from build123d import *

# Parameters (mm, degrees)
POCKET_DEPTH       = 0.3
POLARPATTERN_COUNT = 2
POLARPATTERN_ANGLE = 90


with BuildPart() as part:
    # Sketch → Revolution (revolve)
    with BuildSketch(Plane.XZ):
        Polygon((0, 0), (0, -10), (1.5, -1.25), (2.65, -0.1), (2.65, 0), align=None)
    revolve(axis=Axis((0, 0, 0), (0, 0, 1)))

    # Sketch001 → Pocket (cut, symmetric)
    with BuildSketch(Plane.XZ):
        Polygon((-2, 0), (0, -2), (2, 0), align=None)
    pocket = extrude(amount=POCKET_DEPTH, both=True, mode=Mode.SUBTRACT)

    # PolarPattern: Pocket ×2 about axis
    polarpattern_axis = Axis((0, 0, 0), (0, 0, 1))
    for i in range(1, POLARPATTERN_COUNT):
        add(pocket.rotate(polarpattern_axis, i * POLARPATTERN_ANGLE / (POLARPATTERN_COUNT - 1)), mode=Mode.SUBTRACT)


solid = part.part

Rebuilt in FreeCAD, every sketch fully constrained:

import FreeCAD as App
import Part
import Sketcher

V = App.Vector
Q = App.Units.Quantity

doc = App.newDocument("Part")
body = doc.addObject("PartDesign::Body", "Body")

# Sketch on XZ plane
sketch1 = body.newObject("Sketcher::SketchObject", "Sketch")
sketch1.AttachmentSupport = (doc.getObject("XZ_Plane"), [""])
sketch1.MapMode = "FlatFace"
sketch1.addGeometry([
    Part.LineSegment(V(0, 0, 0), V(0, -10, 0)),  # 0
    Part.LineSegment(V(0, -10, 0), V(1.5, -1.25, 0)),  # 1
    Part.LineSegment(V(1.5, -1.25, 0), V(2.65, -0.1, 0)),  # 2
    Part.LineSegment(V(2.65, -0.1, 0), V(2.65, 0, 0)),  # 3
    Part.LineSegment(V(2.65, 0, 0), V(0, 0, 0)),  # 4
], False)
sketch1.addConstraint([
    Sketcher.Constraint("Coincident", 0, 2, 1, 1),
    Sketcher.Constraint("Coincident", 1, 2, 2, 1),
    Sketcher.Constraint("Coincident", 2, 2, 3, 1),
    Sketcher.Constraint("Coincident", 3, 2, 4, 1),
    Sketcher.Constraint("Coincident", 4, 2, 0, 1),
    Sketcher.Constraint("Vertical", 0),
    Sketcher.Constraint("Vertical", 3),
    Sketcher.Constraint("Horizontal", 4),
    Sketcher.Constraint("Coincident", 4, 2, -1, 1),
    Sketcher.Constraint("DistanceY", 0, 2, 0, 1, Q("10 mm")),
    Sketcher.Constraint("Angle", 2, Q("45 deg")),
    Sketcher.Constraint("DistanceY", 3, 1, 3, 2, Q("0.1 mm")),
    Sketcher.Constraint("DistanceX", 4, 2, 4, 1, Q("2.65 mm")),
    Sketcher.Constraint("DistanceX", -1, 1, 1, 2, Q("1.5 mm")),
])
revolution = body.newObject("PartDesign::Revolution", "Revolution")
revolution.Profile = sketch1
revolution.ReferenceAxis = (sketch1, ["V_Axis"])
revolution.Angle = 360

# Sketch on XZ plane
sketch2 = body.newObject("Sketcher::SketchObject", "Sketch001")
sketch2.AttachmentSupport = (doc.getObject("XZ_Plane"), [""])
sketch2.MapMode = "FlatFace"
sketch2.addGeometry([
    Part.LineSegment(V(-2, 0, 0), V(0, -2, 0)),
    Part.LineSegment(V(0, -2, 0), V(2, 0, 0)),
    Part.LineSegment(V(2, 0, 0), V(-2, 0, 0)),
], False)
sketch2.addConstraint([
    Sketcher.Constraint("Coincident", 0, 2, 1, 1),
    Sketcher.Constraint("Coincident", 1, 2, 2, 1),
    Sketcher.Constraint("Coincident", 2, 2, 0, 1),
    Sketcher.Constraint("Horizontal", 2),
    Sketcher.Constraint("Symmetric", 1, 2, 2, 2, -1, 1),
    Sketcher.Constraint("PointOnObject", 0, 2, -2),
    Sketcher.Constraint("Perpendicular", 0, 1),
    Sketcher.Constraint("DistanceX", 2, 2, 2, 1, Q("4 mm")),
])
pocket1 = body.newObject("PartDesign::Pocket", "Pocket")
pocket1.Profile = sketch2
pocket1.Length = 0.6
pocket1.Midplane = True
doc.recompute()

polarpattern = body.newObject("PartDesign::PolarPattern", "PolarPattern")
polarpattern.Originals = [pocket1]
polarpattern.Axis = (doc.getObject("Z_Axis"), [""])
polarpattern.Angle = 90
polarpattern.Occurrences = 2
body.Tip = polarpattern

doc.recompute()
